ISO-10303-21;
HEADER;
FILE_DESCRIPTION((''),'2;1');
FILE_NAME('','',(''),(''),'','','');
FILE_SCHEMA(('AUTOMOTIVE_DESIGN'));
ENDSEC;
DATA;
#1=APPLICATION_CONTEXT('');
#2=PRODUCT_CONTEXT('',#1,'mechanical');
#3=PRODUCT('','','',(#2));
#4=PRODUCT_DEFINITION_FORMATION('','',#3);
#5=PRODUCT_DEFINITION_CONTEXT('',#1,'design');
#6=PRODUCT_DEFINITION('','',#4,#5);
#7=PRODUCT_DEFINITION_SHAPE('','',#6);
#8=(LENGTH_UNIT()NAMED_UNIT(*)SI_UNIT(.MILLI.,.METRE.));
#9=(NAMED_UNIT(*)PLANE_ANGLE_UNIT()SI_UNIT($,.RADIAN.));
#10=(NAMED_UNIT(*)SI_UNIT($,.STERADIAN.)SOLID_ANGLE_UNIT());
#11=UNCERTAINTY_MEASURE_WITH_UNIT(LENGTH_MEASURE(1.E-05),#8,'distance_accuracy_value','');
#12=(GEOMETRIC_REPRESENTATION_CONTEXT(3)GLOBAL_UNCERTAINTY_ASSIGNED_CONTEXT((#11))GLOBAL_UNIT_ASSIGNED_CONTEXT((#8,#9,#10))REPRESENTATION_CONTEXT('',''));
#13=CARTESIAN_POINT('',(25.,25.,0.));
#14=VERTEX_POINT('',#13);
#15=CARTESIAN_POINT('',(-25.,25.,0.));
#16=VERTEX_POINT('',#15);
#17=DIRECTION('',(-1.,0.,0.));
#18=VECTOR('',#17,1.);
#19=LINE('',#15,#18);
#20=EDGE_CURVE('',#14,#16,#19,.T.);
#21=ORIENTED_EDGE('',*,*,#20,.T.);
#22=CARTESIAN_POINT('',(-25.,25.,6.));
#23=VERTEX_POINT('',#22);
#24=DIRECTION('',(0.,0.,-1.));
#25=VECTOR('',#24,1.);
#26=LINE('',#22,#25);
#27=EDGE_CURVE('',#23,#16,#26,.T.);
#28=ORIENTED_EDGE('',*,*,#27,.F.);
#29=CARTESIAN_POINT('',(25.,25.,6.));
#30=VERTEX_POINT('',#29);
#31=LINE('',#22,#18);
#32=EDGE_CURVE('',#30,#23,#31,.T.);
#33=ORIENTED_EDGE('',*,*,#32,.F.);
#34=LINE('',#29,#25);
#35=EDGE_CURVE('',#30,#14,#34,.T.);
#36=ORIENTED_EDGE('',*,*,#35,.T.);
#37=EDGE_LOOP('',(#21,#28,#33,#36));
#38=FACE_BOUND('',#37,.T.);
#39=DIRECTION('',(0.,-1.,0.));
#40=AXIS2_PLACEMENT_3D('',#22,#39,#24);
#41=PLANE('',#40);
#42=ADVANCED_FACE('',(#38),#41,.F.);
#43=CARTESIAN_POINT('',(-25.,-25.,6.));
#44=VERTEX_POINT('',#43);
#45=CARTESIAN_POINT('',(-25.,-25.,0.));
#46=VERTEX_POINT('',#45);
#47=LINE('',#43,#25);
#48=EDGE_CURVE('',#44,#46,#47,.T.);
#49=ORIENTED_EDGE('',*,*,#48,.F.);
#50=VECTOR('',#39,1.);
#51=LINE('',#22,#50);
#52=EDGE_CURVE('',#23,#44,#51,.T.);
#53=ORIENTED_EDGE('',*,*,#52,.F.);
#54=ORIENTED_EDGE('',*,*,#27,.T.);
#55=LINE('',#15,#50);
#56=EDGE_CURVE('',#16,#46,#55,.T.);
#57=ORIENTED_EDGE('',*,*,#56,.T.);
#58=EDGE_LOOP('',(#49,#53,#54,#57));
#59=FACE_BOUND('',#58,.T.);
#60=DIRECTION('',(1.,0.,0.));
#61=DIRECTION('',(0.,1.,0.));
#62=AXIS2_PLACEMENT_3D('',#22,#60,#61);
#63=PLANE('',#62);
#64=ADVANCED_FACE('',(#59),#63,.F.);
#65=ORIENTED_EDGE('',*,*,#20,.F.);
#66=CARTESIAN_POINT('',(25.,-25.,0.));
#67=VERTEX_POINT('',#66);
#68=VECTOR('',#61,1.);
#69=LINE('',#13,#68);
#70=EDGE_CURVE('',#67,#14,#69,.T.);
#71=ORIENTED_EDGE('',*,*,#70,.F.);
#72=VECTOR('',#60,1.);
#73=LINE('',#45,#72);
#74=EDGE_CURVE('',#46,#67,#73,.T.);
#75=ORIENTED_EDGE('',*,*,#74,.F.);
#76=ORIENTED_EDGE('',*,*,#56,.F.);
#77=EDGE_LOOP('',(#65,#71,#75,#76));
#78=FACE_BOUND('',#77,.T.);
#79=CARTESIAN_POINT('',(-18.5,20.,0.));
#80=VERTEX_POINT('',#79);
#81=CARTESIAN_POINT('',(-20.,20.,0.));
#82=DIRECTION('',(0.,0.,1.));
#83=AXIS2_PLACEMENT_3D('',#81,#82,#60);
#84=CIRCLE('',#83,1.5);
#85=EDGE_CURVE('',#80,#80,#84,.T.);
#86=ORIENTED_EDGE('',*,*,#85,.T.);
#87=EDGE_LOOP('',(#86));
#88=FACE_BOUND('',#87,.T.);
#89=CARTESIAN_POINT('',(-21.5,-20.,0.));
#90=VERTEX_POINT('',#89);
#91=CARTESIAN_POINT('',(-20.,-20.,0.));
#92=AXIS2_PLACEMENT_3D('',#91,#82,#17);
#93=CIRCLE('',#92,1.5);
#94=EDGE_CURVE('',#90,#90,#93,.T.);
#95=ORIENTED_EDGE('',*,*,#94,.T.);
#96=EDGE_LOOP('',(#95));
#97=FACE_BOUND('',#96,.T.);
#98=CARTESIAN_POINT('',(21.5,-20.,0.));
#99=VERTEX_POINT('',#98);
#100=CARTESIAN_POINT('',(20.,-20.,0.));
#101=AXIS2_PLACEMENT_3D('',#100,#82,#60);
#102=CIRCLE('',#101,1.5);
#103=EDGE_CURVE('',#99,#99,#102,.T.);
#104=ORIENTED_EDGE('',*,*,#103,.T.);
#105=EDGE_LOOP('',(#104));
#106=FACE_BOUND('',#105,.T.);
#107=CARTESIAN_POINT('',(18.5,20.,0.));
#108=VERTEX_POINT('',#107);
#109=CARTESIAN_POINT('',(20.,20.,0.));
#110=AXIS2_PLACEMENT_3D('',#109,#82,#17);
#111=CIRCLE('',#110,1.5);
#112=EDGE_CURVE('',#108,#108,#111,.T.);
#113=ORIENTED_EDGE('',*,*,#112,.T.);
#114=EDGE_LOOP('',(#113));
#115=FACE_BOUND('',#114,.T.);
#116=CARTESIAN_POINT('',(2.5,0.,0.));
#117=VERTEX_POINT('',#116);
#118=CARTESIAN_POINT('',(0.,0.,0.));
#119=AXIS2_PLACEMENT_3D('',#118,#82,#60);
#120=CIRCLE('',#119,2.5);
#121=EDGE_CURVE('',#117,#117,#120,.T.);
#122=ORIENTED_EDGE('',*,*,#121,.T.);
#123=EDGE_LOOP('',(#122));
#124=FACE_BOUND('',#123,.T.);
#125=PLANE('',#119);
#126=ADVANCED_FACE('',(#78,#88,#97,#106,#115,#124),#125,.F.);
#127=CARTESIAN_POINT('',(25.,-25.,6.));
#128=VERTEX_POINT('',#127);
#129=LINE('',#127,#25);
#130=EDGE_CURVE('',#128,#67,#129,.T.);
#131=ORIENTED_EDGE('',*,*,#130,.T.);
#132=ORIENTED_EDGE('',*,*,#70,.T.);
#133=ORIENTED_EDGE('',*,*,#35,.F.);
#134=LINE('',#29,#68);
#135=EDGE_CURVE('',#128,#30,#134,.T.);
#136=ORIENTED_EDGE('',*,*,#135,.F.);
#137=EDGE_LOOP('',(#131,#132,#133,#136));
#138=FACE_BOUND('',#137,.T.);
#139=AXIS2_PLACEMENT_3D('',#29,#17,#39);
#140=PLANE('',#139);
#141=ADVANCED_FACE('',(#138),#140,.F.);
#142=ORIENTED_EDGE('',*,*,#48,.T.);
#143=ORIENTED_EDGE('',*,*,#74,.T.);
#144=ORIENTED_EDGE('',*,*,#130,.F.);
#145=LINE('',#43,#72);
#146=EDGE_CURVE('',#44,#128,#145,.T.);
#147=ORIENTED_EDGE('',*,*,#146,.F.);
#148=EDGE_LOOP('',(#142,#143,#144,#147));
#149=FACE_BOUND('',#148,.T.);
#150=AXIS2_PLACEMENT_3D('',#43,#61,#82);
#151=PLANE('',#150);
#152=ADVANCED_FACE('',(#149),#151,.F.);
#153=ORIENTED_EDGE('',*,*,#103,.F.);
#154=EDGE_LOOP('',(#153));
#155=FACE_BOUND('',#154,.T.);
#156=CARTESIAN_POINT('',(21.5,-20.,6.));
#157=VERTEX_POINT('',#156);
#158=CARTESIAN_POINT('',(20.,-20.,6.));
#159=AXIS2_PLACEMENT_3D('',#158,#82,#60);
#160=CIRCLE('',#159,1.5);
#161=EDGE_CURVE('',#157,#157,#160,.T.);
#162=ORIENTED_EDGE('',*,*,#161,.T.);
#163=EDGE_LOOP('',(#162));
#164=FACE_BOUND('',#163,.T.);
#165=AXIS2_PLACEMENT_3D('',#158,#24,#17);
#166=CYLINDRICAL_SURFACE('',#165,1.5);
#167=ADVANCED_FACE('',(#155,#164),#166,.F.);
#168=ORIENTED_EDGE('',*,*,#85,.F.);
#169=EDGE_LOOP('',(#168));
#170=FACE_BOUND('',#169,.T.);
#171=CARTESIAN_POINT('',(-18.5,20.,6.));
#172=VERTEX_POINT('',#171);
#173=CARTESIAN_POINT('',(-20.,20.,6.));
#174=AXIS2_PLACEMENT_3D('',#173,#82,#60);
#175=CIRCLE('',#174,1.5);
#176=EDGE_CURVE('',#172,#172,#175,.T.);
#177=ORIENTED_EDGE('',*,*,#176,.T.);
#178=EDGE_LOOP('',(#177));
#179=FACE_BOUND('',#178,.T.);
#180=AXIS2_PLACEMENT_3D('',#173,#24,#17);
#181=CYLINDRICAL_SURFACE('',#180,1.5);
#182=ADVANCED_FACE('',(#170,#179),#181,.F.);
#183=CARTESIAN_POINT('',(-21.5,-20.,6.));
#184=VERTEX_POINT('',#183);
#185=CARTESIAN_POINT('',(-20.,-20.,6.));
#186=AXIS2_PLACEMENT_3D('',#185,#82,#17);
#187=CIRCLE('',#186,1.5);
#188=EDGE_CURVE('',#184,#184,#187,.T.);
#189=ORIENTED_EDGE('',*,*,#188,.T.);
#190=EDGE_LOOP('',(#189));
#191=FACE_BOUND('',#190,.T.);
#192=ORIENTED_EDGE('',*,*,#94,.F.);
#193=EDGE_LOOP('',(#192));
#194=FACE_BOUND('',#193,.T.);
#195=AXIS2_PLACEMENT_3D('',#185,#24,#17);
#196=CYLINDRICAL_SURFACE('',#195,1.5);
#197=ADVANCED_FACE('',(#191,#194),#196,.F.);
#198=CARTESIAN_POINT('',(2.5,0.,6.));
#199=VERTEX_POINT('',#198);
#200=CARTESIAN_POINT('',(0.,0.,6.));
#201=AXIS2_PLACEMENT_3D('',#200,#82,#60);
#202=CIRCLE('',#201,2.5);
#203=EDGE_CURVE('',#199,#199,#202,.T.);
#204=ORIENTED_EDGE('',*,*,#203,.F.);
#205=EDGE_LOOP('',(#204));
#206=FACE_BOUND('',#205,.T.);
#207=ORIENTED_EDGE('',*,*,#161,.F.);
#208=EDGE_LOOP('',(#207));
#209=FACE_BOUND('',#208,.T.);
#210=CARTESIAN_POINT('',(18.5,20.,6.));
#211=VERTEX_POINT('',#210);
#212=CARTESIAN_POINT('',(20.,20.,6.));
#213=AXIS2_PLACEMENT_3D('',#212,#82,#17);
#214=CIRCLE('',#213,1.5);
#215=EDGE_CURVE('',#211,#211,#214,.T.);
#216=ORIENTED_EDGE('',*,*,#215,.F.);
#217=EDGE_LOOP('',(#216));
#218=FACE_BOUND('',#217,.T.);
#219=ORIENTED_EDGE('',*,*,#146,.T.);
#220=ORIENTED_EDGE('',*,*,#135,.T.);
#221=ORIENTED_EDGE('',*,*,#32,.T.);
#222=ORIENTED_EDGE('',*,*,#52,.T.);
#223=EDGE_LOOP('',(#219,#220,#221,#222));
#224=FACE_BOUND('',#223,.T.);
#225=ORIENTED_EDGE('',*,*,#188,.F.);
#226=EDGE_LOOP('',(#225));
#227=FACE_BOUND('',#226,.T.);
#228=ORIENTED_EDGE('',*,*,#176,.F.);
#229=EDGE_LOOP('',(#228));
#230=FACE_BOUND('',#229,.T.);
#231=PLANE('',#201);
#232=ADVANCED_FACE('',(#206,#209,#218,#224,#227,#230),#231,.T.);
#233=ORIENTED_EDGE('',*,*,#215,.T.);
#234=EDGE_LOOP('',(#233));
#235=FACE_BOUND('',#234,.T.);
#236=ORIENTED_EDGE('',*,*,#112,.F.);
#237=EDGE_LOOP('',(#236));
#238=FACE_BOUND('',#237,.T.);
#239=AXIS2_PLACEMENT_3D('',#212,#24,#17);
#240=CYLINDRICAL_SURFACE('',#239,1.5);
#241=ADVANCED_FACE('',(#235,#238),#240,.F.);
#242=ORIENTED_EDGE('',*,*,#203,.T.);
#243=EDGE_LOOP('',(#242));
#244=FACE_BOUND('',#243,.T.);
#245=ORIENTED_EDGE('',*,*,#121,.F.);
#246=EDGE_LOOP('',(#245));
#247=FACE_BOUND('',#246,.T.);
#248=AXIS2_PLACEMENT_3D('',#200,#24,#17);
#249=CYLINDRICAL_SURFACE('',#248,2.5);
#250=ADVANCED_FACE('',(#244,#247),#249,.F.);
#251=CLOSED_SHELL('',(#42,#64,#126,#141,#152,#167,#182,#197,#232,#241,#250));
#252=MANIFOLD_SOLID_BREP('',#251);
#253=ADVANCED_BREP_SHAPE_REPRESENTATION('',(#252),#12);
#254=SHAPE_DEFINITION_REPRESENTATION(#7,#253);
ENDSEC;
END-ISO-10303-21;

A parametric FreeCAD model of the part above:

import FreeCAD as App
import Part
import Sketcher
Q = App.Units.Quantity

doc = App.newDocument("Part")
params = doc.addObject("Spreadsheet::Sheet", "Params")
for row, (alias, value) in enumerate([
    ("sketch1_diameter", "3 mm"),
    ("sketch1_diameter2", "5 mm"),
    ("sketch1_width", "50 mm"),
    ("pad1_length", "6 mm"),
], start=1):
    params.set(f"A{row}", alias)
    params.set(f"B{row}", "=" + value)
    params.setAlias(f"B{row}", alias)

body = doc.addObject("PartDesign::Body", "Body")

# Sketch on XY plane
sketch1 = doc.addObject("Sketcher::SketchObject", "Sketch")
body.addObject(sketch1)
sketch1.AttachmentSupport = (doc.XY_Plane, [""])
sketch1.MapMode = "FlatFace"
sketch1.addGeometry(Part.LineSegment(App.Vector(-25, 25, 0), App.Vector(-25, -25, 0)), False)
sketch1.addGeometry(Part.LineSegment(App.Vector(-25, -25, 0), App.Vector(25, -25, 0)), False)
sketch1.addGeometry(Part.LineSegment(App.Vector(25, -25, 0), App.Vector(25, 25, 0)), False)
sketch1.addGeometry(Part.LineSegment(App.Vector(25, 25, 0), App.Vector(-25, 25, 0)), False)
sketch1.addGeometry(Part.Circle(App.Vector(-20, -20, 0), App.Vector(0, 0, 1), 1.5), False)
sketch1.addGeometry(Part.Circle(App.Vector(20, -20, 0), App.Vector(0, 0, 1), 1.5), False)
sketch1.addGeometry(Part.Circle(App.Vector(-20, 20, 0), App.Vector(0, 0, 1), 1.5), False)
sketch1.addGeometry(Part.Circle(App.Vector(0, 0, 0), App.Vector(0, 0, 1), 2.5), False)
sketch1.addGeometry(Part.Circle(App.Vector(20, 20, 0), App.Vector(0, 0, 1), 1.5), False)
sketch1.addConstraint(Sketcher.Constraint("Coincident", 0, 2, 1, 1))
sketch1.addConstraint(Sketcher.Constraint("Coincident", 1, 2, 2, 1))
sketch1.addConstraint(Sketcher.Constraint("Coincident", 2, 2, 3, 1))
sketch1.addConstraint(Sketcher.Constraint("Coincident", 3, 2, 0, 1))
sketch1.addConstraint(Sketcher.Constraint("Vertical", 0))
sketch1.addConstraint(Sketcher.Constraint("Horizontal", 1))
sketch1.addConstraint(Sketcher.Constraint("Vertical", 2))
sketch1.addConstraint(Sketcher.Constraint("Horizontal", 3))
sketch1.addConstraint(Sketcher.Constraint("Coincident", 7, 3, -1, 1))
sketch1.addConstraint(Sketcher.Constraint("Equal", 4, 5))
sketch1.addConstraint(Sketcher.Constraint("Equal", 5, 6))
sketch1.addConstraint(Sketcher.Constraint("Equal", 6, 8))
sketch1.addConstraint(Sketcher.Constraint("Symmetric", 5, 3, 6, 3, -1, 1))
sketch1.addConstraint(Sketcher.Constraint("Symmetric", 4, 3, 8, 3, -1, 1))
sketch1.addConstraint(Sketcher.Constraint("Symmetric", 0, 2, 2, 2, -1, 1))
sketch1.addConstraint(Sketcher.Constraint("Symmetric", 4, 3, 5, 3, -2))
sketch1.addConstraint(Sketcher.Constraint("Equal", 3, 0))
sketch1.addConstraint(Sketcher.Constraint("Diameter", 4, Q("3 mm")))
sketch1.addConstraint(Sketcher.Constraint("Diameter", 7, Q("5 mm")))
sketch1.addConstraint(Sketcher.Constraint("DistanceX", 1, 1, 1, 2, Q("50 mm")))
sketch1.addConstraint(Sketcher.Constraint("DistanceX", 4, 3, -1, 1, Q("20 mm")))
sketch1.addConstraint(Sketcher.Constraint("DistanceY", 4, 3, -1, 1, Q("20 mm")))
sketch1.setExpression("Constraints[17]", "Params.sketch1_diameter")
sketch1.setExpression("Constraints[18]", "Params.sketch1_diameter2")
sketch1.setExpression("Constraints[19]", "Params.sketch1_width")
pad1 = doc.addObject("PartDesign::Pad", "Pad")
body.addObject(pad1)
pad1.Profile = sketch1
pad1.setExpression("Length", "Params.pad1_length")

doc.recompute()
